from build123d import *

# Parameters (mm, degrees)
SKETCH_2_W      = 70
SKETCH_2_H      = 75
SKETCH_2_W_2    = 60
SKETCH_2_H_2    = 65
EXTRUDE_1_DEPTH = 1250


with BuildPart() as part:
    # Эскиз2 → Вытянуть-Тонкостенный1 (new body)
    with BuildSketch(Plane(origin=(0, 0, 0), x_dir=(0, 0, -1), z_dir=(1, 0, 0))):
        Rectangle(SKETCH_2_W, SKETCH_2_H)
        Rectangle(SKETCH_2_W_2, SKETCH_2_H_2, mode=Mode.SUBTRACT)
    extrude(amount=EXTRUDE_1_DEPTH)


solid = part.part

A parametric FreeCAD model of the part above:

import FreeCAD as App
import Part
import Sketcher
Q = App.Units.Quantity


def add_polygon(sketch, points):
    """Adds a closed chain of lines whose ends are joined by coincident constraints."""
    first, n = sketch.GeometryCount, len(points)
    for a, b in zip(points, points[1:] + points[:1]):
        sketch.addGeometry(Part.LineSegment(App.Vector(*a, 0), App.Vector(*b, 0)), False)
    for i in range(n):
        sketch.addConstraint(Sketcher.Constraint("Coincident", first + i, 2, first + (i + 1) % n, 1))

doc = App.newDocument("Part")
body = doc.addObject("PartDesign::Body", "Body")

sketch1 = body.newObject("Sketcher::SketchObject", "Sketch")
sketch1.AttachmentSupport = (doc.getObject("YZ_Plane"), [""])
sketch1.MapMode = "FlatFace"
add_polygon(sketch1, [(37.5, 35), (-37.5, 35), (-37.5, -35), (37.5, -35)])
add_polygon(sketch1, [(-32.5, -30), (-32.5, 30), (32.5, 30), (32.5, -30)])
sketch1.addConstraint([
    Sketcher.Constraint("Horizontal", 0),
    Sketcher.Constraint("Vertical", 1),
    Sketcher.Constraint("Horizontal", 2),
    Sketcher.Constraint("Vertical", 3),
    Sketcher.Constraint("Vertical", 4),
    Sketcher.Constraint("Horizontal", 5),
    Sketcher.Constraint("Vertical", 6),
    Sketcher.Constraint("Horizontal", 7),
    Sketcher.Constraint("Symmetric", 0, 2, 2, 2, -1, 1),
    Sketcher.Constraint("Symmetric", 4, 2, 6, 2, -1, 1),
    Sketcher.Constraint("DistanceX", 0, 2, 0, 1, Q("75 mm")),
    Sketcher.Constraint("DistanceX", 5, 1, 5, 2, Q("65 mm")),
    Sketcher.Constraint("DistanceY", 1, 2, 1, 1, Q("70 mm")),
    Sketcher.Constraint("DistanceY", 4, 1, 4, 2, Q("60 mm")),
])
pad1 = body.newObject("PartDesign::Pad", "Pad")
pad1.Profile = sketch1
pad1.Length = 1250

doc.recompute()
